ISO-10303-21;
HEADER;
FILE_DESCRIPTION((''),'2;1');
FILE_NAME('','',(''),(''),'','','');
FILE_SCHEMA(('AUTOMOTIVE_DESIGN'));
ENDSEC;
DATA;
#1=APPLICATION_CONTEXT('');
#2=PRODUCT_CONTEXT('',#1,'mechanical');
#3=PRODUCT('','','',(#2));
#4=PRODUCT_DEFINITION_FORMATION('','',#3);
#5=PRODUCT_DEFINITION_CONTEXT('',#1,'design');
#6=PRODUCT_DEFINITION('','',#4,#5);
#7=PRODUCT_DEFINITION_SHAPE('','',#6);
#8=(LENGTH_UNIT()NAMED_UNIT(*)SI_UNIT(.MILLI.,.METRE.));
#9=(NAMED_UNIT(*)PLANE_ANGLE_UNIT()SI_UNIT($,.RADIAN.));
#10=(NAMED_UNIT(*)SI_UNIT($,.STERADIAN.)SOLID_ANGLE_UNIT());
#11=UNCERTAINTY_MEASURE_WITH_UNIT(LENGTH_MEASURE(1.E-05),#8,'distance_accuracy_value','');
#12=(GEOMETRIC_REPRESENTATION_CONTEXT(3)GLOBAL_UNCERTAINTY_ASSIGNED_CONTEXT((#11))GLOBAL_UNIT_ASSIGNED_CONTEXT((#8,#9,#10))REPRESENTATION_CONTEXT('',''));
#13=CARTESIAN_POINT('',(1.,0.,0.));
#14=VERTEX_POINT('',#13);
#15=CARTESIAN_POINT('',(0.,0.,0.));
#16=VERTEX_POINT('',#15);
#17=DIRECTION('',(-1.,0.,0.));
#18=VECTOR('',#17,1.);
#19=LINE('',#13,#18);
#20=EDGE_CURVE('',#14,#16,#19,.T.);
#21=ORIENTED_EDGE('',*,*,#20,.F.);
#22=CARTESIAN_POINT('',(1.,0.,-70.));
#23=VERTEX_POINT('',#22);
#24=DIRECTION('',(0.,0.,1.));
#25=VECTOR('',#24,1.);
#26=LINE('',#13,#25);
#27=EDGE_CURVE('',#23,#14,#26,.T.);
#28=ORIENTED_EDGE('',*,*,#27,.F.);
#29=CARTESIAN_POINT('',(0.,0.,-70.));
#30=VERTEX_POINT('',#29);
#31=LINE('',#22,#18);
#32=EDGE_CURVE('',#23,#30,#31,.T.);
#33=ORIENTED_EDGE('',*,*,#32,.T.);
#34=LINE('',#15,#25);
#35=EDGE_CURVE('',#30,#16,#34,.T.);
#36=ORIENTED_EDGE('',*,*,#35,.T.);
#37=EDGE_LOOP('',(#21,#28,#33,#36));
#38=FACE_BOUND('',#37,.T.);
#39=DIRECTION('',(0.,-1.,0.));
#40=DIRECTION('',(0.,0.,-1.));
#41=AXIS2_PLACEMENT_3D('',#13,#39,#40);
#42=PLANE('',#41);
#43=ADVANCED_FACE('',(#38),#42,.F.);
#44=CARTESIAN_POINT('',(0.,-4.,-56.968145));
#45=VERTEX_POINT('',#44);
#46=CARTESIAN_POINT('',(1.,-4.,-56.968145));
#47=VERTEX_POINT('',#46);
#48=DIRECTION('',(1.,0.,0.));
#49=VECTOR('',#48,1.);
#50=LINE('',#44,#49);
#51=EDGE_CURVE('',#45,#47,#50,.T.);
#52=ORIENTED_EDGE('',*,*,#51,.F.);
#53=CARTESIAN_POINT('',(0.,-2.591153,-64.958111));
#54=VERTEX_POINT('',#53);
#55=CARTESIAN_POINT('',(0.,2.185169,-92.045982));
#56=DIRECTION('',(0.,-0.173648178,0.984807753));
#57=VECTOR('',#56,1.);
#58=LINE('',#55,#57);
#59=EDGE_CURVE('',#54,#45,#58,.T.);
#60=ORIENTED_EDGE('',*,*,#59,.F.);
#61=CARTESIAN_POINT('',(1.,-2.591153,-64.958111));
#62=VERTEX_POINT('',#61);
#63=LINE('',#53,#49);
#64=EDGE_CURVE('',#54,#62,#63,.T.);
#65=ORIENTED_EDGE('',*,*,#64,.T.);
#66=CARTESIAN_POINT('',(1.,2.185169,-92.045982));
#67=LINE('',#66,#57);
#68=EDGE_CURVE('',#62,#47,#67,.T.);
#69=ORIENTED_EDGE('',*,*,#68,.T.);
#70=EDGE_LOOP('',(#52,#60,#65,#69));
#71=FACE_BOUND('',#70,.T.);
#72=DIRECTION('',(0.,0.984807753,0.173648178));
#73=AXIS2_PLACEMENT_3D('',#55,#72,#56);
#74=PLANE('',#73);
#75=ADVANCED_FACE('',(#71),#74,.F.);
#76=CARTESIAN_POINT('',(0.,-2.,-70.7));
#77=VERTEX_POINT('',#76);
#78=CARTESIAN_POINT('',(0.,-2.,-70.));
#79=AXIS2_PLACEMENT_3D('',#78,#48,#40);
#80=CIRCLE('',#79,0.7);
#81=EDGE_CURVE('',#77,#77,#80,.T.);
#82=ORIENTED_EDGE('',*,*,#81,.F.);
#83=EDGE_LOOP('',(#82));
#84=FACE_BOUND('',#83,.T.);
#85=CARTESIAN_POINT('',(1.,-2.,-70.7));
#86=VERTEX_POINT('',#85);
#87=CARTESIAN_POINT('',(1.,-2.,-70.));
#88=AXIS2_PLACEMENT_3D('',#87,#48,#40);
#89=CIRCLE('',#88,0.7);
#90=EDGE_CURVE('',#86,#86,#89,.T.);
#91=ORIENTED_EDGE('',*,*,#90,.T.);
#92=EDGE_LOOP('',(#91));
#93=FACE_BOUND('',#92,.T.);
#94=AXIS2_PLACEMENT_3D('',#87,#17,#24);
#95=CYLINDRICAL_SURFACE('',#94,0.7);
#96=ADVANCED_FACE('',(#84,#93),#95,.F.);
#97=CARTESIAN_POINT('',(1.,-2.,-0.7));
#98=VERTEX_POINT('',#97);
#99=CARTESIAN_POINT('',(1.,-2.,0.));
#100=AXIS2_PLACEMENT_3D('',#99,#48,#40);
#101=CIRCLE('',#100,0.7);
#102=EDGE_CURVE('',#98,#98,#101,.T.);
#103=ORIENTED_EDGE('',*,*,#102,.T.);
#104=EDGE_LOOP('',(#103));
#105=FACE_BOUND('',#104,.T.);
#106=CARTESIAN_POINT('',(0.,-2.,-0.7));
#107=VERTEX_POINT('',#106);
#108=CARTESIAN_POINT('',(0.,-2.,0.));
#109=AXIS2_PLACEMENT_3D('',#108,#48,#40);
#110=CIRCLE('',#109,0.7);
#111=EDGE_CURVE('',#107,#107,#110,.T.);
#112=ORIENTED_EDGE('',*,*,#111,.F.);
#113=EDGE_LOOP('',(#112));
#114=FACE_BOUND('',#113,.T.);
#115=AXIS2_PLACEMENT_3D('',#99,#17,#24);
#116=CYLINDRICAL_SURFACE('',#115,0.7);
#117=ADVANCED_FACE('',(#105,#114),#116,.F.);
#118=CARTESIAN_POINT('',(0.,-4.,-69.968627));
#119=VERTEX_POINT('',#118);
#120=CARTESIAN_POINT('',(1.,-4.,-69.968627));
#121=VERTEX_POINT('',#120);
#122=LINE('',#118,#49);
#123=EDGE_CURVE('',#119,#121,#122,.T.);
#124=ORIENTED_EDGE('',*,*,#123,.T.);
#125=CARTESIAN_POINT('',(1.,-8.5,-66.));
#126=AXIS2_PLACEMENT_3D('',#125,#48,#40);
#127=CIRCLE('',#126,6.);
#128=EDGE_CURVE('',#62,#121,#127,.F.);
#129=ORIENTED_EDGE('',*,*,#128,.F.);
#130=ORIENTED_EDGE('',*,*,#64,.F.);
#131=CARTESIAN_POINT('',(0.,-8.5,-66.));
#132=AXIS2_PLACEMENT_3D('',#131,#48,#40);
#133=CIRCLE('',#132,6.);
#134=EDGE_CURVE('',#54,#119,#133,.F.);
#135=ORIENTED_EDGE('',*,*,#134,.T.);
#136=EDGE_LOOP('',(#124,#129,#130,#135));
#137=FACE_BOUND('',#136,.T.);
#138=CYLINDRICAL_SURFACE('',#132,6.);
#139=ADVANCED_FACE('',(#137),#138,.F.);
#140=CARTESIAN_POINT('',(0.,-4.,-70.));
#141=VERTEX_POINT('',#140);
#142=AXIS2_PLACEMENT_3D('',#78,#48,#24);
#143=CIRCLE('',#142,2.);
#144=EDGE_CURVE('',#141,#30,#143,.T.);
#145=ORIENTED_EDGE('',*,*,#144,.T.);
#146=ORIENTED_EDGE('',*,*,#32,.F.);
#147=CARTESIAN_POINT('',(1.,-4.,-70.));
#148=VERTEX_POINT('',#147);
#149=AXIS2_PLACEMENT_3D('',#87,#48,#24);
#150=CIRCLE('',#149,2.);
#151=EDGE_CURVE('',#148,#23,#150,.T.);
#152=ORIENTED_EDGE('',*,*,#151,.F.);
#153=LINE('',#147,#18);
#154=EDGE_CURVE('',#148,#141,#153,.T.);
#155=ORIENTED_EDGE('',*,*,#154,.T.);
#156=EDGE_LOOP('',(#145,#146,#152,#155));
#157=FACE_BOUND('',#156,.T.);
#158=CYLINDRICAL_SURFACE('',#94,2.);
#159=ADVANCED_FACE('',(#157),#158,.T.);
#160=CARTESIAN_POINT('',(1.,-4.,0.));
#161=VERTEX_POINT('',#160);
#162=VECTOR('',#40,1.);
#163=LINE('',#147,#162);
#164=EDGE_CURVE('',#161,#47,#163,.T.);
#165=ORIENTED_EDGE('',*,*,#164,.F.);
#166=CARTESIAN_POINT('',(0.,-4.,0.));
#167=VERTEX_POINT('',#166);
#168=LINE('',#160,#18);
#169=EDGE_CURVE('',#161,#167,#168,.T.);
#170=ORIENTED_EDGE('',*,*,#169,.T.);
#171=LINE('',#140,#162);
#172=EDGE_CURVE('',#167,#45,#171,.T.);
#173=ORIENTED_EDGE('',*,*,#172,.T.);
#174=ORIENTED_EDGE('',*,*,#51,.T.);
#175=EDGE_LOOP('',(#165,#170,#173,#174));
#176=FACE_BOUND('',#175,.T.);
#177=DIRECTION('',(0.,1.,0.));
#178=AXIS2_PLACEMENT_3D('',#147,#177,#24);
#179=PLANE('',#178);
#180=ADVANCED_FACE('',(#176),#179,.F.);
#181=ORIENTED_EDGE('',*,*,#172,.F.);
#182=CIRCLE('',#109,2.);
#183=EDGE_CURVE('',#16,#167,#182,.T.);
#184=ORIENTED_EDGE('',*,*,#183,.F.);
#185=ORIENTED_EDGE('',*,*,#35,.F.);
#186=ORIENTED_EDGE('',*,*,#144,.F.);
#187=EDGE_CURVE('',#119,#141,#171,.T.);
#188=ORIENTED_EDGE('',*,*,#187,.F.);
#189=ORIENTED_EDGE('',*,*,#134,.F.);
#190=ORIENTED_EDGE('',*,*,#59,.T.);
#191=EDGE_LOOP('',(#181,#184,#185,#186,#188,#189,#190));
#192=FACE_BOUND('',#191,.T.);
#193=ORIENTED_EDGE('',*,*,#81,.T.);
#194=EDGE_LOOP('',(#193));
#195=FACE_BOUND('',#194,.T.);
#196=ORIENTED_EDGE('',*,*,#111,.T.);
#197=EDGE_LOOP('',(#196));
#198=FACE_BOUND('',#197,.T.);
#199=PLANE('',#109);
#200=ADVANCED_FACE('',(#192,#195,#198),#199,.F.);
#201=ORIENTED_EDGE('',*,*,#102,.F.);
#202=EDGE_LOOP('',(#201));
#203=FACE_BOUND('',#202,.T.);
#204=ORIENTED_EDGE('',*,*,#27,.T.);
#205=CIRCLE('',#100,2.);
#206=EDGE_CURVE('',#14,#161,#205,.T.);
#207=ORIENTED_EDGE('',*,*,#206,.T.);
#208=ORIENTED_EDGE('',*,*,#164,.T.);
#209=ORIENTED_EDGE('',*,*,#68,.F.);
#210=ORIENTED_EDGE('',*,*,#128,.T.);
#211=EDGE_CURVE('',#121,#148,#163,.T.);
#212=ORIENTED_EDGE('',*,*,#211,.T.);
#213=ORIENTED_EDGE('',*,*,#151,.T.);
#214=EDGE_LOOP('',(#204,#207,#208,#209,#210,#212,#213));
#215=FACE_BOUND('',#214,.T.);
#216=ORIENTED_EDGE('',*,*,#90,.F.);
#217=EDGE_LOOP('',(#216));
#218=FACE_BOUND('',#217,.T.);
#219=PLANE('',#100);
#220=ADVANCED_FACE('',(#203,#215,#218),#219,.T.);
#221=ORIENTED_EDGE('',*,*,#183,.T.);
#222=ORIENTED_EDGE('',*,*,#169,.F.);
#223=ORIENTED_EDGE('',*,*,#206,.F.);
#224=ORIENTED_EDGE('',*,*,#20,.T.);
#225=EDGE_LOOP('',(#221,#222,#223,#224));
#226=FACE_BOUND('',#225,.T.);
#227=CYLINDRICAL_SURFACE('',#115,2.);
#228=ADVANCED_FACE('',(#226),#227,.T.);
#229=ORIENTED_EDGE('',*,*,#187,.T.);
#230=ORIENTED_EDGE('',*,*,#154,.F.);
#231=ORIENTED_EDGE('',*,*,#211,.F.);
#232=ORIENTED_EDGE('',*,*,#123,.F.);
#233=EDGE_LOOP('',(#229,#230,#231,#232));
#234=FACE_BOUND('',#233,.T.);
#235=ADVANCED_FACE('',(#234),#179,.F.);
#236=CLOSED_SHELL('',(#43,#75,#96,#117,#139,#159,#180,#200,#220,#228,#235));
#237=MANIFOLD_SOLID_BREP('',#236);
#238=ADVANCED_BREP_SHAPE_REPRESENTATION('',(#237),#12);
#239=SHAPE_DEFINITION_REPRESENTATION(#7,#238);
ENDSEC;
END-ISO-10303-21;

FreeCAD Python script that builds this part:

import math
import FreeCAD as App
import Part
import Sketcher
from FreeCAD import Vector
Q = App.Units.Quantity

doc = App.newDocument("Part")
params = doc.addObject("Spreadsheet::Sheet", "Params")
for row, (alias, value) in enumerate([
    ("sketch1_radius", "2 mm"),
    ("sketch1_diameter", "1.4 mm"),
    ("sketch1_height", "70 mm"),
    ("pad1_length", "1 mm"),
    ("sketch2_radius", "6 mm"),
], start=1):
    params.set(f"A{row}", alias)
    params.set(f"B{row}", "=" + value)
    params.setAlias(f"B{row}", alias)

body = doc.addObject("PartDesign::Body", "Body")

sketch1 = body.newObject("Sketcher::SketchObject", "Sketch")
sketch1.AttachmentSupport = (doc.getObject("YZ_Plane"), [""])
sketch1.MapMode = "FlatFace"
sketch1.addGeometry([
    Part.LineSegment(Vector(0, -70, 0), Vector(0, 0, 0)),
    Part.ArcOfCircle(Part.Circle(Vector(-2, 0, 0), Vector(0, 0, 1), 2), math.radians(0), math.radians(180)),
    Part.LineSegment(Vector(-4, 0, 0), Vector(-4, -70, 0)),
    Part.ArcOfCircle(Part.Circle(Vector(-2, -70, 0), Vector(0, 0, 1), 2), math.radians(180), math.radians(360)),
    Part.Circle(Vector(-2, -70, 0), Vector(0, 0, 1), 0.7),
    Part.Circle(Vector(-2, 0, 0), Vector(0, 0, 1), 0.7),
], False)
sketch1.addConstraint([
    Sketcher.Constraint("Tangent", 0, 2, 1, 1),
    Sketcher.Constraint("Tangent", 1, 2, 2, 1),
    Sketcher.Constraint("Tangent", 2, 2, 3, 1),
    Sketcher.Constraint("Tangent", 3, 2, 0, 1),
    Sketcher.Constraint("Vertical", 0),
    Sketcher.Constraint("Vertical", 2),
    Sketcher.Constraint("Coincident", 0, 2, -1, 1),
    Sketcher.Constraint("Coincident", 4, 3, 3, 3),
    Sketcher.Constraint("Coincident", 5, 3, 1, 3),
    Sketcher.Constraint("Equal", 4, 5),
    Sketcher.Constraint("Radius", 1, Q("2 mm")),
    Sketcher.Constraint("Diameter", 4, Q("1.4 mm")),
    Sketcher.Constraint("DistanceY", 0, 1, 0, 2, Q("70 mm")),
])
sketch1.setExpression("Constraints[10]", "Params.sketch1_radius")
sketch1.setExpression("Constraints[11]", "Params.sketch1_diameter")
sketch1.setExpression("Constraints[12]", "Params.sketch1_height")
pad1 = body.newObject("PartDesign::Pad", "Pad")
pad1.Profile = sketch1
pad1.setExpression("Length", "Params.pad1_length")

sketch2 = body.newObject("Sketcher::SketchObject", "Sketch001")
sketch2.AttachmentSupport = (doc.getObject("YZ_Plane"), [""])
sketch2.MapMode = "FlatFace"
sketch2.AttachmentOffset = App.Placement(Vector(0, 0, 1), App.Rotation())
sketch2.addGeometry([
    Part.LineSegment(Vector(-106, -186, 0), Vector(-4, -70, 0)),
    Part.ArcOfCircle(Part.Circle(Vector(-9, -66, 0), Vector(0, 0, 1), 6), math.radians(-41), math.radians(10)),
    Part.LineSegment(Vector(-3, -65, 0), Vector(-4, -57, 0)),
    Part.LineSegment(Vector(-4, -57, 0), Vector(-31, 95, 0)),
    Part.LineSegment(Vector(-31, 95, 0), Vector(-329, 175, 0)),
    Part.LineSegment(Vector(-329, 175, 0), Vector(-404, -106, 0)),
    Part.LineSegment(Vector(-404, -106, 0), Vector(-106, -186, 0)),
], False)
sketch2.addConstraint([
    Sketcher.Constraint("Tangent", 0, 2, 1, 1),
    Sketcher.Constraint("Tangent", 1, 2, 2, 1),
    Sketcher.Constraint("Coincident", 2, 2, 3, 1),
    Sketcher.Constraint("Coincident", 3, 2, 4, 1),
    Sketcher.Constraint("Coincident", 4, 2, 5, 1),
    Sketcher.Constraint("Coincident", 5, 2, 6, 1),
    Sketcher.Constraint("Coincident", 6, 2, 0, 1),
    Sketcher.Constraint("Parallel", 2, 3),
    Sketcher.Constraint("Perpendicular", 4, 5),
    Sketcher.Constraint("Perpendicular", 5, 6),
    Sketcher.Constraint("Vertical", 0, 2, 2, 2),
    Sketcher.Constraint("Equal", 0, 3),
    Sketcher.Constraint("Equal", 4, 6),
    Sketcher.Constraint("Radius", 1, Q("6 mm")),
    Sketcher.Constraint("Angle", 2, Q("100 deg")),
    Sketcher.Constraint("DistanceY", 1, 3, -1, 1, Q("66 mm")),
    Sketcher.Constraint("DistanceX", 0, 2, -1, 1, Q("4 mm")),
    Sketcher.Constraint("DistanceX", 1, 3, -1, 1, Q("8.5 mm")),
    Sketcher.Constraint("DistanceY", 1, 2, 4, 2, Q("239.659999 mm")),
    Sketcher.Constraint("Distance", 0, Q("154.159402 mm")),
])
sketch2.setExpression("Constraints[13]", "Params.sketch2_radius")
pocket1 = body.newObject("PartDesign::Pocket", "Pocket")
pocket1.Profile = sketch2
pocket1.Type = "ThroughAll"

doc.recompute()
